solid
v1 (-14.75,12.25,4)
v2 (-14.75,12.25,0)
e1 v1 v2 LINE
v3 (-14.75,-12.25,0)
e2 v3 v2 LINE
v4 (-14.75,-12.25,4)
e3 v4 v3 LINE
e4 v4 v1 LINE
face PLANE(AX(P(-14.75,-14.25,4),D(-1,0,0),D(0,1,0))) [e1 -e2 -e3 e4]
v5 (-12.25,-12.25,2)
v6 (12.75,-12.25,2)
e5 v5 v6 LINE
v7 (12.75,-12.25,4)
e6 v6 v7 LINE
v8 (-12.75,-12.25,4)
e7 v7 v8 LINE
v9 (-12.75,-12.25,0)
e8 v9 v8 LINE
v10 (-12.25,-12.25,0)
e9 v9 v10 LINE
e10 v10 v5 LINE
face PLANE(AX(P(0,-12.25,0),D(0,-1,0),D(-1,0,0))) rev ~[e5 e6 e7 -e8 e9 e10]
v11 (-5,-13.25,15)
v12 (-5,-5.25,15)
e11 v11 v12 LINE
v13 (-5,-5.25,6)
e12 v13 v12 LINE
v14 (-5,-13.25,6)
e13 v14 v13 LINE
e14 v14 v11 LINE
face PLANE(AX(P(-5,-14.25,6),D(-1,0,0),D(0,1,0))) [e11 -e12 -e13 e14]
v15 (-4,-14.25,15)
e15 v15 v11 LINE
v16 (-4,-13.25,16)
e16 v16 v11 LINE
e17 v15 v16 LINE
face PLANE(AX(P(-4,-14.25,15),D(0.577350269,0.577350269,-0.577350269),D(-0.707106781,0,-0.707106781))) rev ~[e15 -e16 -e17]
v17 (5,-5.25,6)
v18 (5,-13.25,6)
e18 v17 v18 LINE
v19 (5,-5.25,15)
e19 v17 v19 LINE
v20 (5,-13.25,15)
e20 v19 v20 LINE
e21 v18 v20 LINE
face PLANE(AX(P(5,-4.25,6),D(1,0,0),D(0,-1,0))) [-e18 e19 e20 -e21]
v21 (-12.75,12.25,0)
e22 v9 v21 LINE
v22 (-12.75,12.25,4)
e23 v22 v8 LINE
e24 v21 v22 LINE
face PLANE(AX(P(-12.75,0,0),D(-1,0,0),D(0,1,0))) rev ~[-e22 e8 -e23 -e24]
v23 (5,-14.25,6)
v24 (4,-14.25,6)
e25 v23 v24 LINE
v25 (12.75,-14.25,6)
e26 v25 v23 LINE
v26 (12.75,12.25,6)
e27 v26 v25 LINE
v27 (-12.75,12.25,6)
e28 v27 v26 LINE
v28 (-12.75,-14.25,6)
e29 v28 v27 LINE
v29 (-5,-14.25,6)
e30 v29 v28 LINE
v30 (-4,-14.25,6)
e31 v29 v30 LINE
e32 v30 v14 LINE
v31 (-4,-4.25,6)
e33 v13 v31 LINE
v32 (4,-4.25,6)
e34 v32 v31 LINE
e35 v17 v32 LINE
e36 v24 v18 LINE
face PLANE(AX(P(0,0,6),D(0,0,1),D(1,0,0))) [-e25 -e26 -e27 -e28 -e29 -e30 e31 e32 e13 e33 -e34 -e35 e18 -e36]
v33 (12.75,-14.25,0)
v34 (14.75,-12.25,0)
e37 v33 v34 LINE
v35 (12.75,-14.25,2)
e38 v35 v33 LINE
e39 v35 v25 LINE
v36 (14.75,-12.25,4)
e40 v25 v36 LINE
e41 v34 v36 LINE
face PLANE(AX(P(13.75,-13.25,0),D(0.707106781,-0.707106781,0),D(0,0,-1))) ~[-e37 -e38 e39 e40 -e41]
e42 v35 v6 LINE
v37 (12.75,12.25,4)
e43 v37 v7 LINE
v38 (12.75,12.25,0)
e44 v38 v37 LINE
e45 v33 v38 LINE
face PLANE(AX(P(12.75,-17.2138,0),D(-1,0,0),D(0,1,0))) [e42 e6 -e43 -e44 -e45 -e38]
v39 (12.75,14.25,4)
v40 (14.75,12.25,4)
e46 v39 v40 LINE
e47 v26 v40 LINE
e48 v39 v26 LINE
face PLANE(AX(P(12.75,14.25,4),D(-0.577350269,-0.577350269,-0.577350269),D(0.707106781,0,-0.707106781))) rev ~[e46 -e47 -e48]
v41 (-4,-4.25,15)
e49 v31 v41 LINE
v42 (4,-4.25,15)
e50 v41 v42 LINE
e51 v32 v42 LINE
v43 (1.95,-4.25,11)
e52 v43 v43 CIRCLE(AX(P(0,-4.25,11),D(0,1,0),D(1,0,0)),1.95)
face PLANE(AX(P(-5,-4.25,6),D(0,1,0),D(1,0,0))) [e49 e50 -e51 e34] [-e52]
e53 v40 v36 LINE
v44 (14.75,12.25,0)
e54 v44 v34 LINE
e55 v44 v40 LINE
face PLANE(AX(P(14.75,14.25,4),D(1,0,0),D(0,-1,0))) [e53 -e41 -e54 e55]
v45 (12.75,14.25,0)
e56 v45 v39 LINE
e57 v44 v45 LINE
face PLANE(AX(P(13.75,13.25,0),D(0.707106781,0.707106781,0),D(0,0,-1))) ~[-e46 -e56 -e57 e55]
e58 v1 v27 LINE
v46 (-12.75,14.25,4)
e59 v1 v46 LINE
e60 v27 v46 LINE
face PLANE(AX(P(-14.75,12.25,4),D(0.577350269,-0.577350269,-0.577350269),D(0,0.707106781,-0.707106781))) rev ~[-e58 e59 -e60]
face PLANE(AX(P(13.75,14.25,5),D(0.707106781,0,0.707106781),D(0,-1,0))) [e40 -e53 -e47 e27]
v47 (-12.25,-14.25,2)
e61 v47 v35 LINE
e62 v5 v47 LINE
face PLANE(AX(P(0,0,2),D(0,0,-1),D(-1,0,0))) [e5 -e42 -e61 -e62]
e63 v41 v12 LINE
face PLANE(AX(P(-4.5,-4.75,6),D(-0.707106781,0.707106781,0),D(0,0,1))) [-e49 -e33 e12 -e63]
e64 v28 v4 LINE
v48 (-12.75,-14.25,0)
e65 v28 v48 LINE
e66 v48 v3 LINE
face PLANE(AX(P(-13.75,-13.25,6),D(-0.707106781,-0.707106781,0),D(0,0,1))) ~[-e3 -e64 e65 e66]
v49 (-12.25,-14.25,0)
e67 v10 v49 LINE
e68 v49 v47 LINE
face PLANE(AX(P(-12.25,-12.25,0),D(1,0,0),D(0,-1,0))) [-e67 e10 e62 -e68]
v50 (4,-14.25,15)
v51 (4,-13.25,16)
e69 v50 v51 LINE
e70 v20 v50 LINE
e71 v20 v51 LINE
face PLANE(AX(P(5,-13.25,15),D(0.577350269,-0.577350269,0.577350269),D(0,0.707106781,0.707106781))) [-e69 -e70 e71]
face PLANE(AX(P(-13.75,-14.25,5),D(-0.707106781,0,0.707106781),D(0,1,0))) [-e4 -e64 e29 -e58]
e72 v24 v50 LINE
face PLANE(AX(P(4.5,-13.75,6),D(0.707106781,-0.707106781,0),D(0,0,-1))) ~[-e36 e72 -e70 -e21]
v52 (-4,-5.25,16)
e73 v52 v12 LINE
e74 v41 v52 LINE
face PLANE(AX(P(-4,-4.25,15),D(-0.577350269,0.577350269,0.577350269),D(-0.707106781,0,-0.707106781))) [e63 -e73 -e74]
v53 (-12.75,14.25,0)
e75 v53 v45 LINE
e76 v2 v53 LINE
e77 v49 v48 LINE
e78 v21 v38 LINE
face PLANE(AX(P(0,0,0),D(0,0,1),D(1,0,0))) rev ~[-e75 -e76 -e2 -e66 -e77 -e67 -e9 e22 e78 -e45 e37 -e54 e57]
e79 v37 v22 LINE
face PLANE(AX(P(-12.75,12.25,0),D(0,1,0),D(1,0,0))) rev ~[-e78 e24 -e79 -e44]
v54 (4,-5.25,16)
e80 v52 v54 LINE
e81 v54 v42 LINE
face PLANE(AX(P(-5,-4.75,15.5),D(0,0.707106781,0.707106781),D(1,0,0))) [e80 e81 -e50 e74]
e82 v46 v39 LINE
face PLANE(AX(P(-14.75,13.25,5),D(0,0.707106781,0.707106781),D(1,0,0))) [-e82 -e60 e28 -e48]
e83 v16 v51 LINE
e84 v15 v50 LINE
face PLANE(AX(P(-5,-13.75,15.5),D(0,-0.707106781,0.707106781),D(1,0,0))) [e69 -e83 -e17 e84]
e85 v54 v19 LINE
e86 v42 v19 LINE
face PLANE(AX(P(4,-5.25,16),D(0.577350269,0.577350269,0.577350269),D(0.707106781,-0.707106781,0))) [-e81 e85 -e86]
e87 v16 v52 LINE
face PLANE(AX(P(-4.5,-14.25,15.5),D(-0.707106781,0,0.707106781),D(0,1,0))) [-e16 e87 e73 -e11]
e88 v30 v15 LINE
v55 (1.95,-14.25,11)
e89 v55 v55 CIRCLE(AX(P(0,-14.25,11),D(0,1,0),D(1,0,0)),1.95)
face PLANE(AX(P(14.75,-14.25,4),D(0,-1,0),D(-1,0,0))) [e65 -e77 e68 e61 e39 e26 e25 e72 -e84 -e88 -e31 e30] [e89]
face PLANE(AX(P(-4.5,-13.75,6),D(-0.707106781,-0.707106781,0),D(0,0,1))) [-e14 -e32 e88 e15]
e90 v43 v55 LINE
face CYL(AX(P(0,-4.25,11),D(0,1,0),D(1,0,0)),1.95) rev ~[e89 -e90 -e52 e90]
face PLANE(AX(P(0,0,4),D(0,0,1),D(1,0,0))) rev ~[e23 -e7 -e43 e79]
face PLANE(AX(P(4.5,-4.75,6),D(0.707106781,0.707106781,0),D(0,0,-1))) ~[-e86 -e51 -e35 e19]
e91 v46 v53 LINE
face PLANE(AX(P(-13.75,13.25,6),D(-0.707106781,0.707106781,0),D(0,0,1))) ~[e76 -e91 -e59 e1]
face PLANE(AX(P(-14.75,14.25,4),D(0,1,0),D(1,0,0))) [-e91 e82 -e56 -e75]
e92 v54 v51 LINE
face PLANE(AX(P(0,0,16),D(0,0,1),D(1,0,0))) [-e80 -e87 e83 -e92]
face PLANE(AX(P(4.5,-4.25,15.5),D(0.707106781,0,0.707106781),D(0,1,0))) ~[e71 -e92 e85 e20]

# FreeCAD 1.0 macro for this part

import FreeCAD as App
import Part
import Sketcher

V = App.Vector


def edges_at(feature, points):
    """Names of the edges that pass closest to the given points."""
    edges = feature.Shape.Edges
    near = lambda p: min(range(len(edges)), key=lambda i: edges[i].distToShape(Part.Vertex(*p))[0])
    return sorted({f"Edge{near(p) + 1}" for p in points})

doc = App.newDocument("Part")
body = doc.addObject("PartDesign::Body", "Body")

# Sketch on XY plane
sketch1 = body.newObject("Sketcher::SketchObject", "Sketch")
sketch1.AttachmentSupport = (doc.getObject("XY_Plane"), [""])
sketch1.MapMode = "FlatFace"
sketch1.addGeometry(Part.LineSegment(V(-14.75, 14.25, 0), V(-14.75, -14.25, 0)), False)
sketch1.addGeometry(Part.LineSegment(V(-14.75, -14.25, 0), V(14.75, -14.25, 0)), False)
sketch1.addGeometry(Part.LineSegment(V(14.75, -14.25, 0), V(14.75, 14.25, 0)), False)
sketch1.addGeometry(Part.LineSegment(V(14.75, 14.25, 0), V(-14.75, 14.25, 0)), False)
sketch1.addGeometry(Part.LineSegment(V(-12.75, 12.25, 0), V(12.75, 12.25, 0)), False)
sketch1.addGeometry(Part.LineSegment(V(12.75, 12.25, 0), V(12.75, -12.25, 0)), False)
sketch1.addGeometry(Part.LineSegment(V(12.75, -12.25, 0), V(-12.75, -12.25, 0)), False)
sketch1.addGeometry(Part.LineSegment(V(-12.75, -12.25, 0), V(-12.75, 12.25, 0)), False)
sketch1.addConstraint(Sketcher.Constraint("Coincident", 0, 2, 1, 1))
sketch1.addConstraint(Sketcher.Constraint("Coincident", 1, 2, 2, 1))
sketch1.addConstraint(Sketcher.Constraint("Coincident", 2, 2, 3, 1))
sketch1.addConstraint(Sketcher.Constraint("Coincident", 3, 2, 0, 1))
sketch1.addConstraint(Sketcher.Constraint("Coincident", 4, 2, 5, 1))
sketch1.addConstraint(Sketcher.Constraint("Coincident", 5, 2, 6, 1))
sketch1.addConstraint(Sketcher.Constraint("Coincident", 6, 2, 7, 1))
sketch1.addConstraint(Sketcher.Constraint("Coincident", 7, 2, 4, 1))
sketch1.addConstraint(Sketcher.Constraint("Vertical", 0))
sketch1.addConstraint(Sketcher.Constraint("Horizontal", 1))
sketch1.addConstraint(Sketcher.Constraint("Vertical", 2))
sketch1.addConstraint(Sketcher.Constraint("Horizontal", 3))
sketch1.addConstraint(Sketcher.Constraint("Horizontal", 4))
sketch1.addConstraint(Sketcher.Constraint("Vertical", 5))
sketch1.addConstraint(Sketcher.Constraint("Horizontal", 6))
sketch1.addConstraint(Sketcher.Constraint("Vertical", 7))
sketch1.addConstraint(Sketcher.Constraint("Symmetric", 0, 2, 2, 2, -1, 1))
sketch1.addConstraint(Sketcher.Constraint("Symmetric", 4, 2, 6, 2, -1, 1))
sketch1.addConstraint(Sketcher.Constraint("DistanceX", 4, 1, 4, 2, 25.5))
sketch1.addConstraint(Sketcher.Constraint("DistanceY", 5, 2, 5, 1, 24.5))
sketch1.addConstraint(Sketcher.Constraint("DistanceX", 4, 2, 2, 2, 2.0))
sketch1.addConstraint(Sketcher.Constraint("DistanceY", 4, 2, 2, 2, 2.0))
pad1 = body.newObject("PartDesign::Pad", "Pad")
pad1.Profile = sketch1
pad1.Length = 4

# Sketch on XY plane
sketch2 = body.newObject("Sketcher::SketchObject", "Sketch001")
sketch2.AttachmentSupport = (doc.getObject("XY_Plane"), [""])
sketch2.MapMode = "FlatFace"
sketch2.AttachmentOffset = App.Placement(V(0, 0, 4), App.Rotation())
sketch2.addGeometry(Part.LineSegment(V(-14.75, -14.25, 0), V(14.75, -14.25, 0)), False)
sketch2.addGeometry(Part.LineSegment(V(14.75, -14.25, 0), V(14.75, 14.25, 0)), False)
sketch2.addGeometry(Part.LineSegment(V(14.75, 14.25, 0), V(-14.75, 14.25, 0)), False)
sketch2.addGeometry(Part.LineSegment(V(-14.75, 14.25, 0), V(-14.75, -14.25, 0)), False)
sketch2.addConstraint(Sketcher.Constraint("Coincident", 0, 2, 1, 1))
sketch2.addConstraint(Sketcher.Constraint("Coincident", 1, 2, 2, 1))
sketch2.addConstraint(Sketcher.Constraint("Coincident", 2, 2, 3, 1))
sketch2.addConstraint(Sketcher.Constraint("Coincident", 3, 2, 0, 1))
sketch2.addConstraint(Sketcher.Constraint("Horizontal", 0))
sketch2.addConstraint(Sketcher.Constraint("Vertical", 1))
sketch2.addConstraint(Sketcher.Constraint("Horizontal", 2))
sketch2.addConstraint(Sketcher.Constraint("Vertical", 3))
sketch2.addConstraint(Sketcher.Constraint("Symmetric", 0, 2, 2, 2, -1, 1))
sketch2.addConstraint(Sketcher.Constraint("DistanceX", 0, 1, 0, 2, 29.5))
sketch2.addConstraint(Sketcher.Constraint("DistanceY", 1, 1, 1, 2, 28.5))
pad2 = body.newObject("PartDesign::Pad", "Pad001")
pad2.Profile = sketch2
pad2.Length = 2

# Sketch on XY plane
sketch3 = body.newObject("Sketcher::SketchObject", "Sketch002")
sketch3.AttachmentSupport = (doc.getObject("XY_Plane"), [""])
sketch3.MapMode = "FlatFace"
sketch3.addGeometry(Part.LineSegment(V(-12.25, -17.2138, 0), V(-12.25, -12.25, 0)), False)
sketch3.addGeometry(Part.LineSegment(V(-12.25, -12.25, 0), V(12.75, -12.25, 0)), False)
sketch3.addGeometry(Part.LineSegment(V(12.75, -12.25, 0), V(12.75, -17.2138, 0)), False)
sketch3.addGeometry(Part.LineSegment(V(12.75, -17.2138, 0), V(-12.25, -17.2138, 0)), False)
sketch3.addConstraint(Sketcher.Constraint("Coincident", 0, 2, 1, 1))
sketch3.addConstraint(Sketcher.Constraint("Coincident", 1, 2, 2, 1))
sketch3.addConstraint(Sketcher.Constraint("Coincident", 2, 2, 3, 1))
sketch3.addConstraint(Sketcher.Constraint("Coincident", 3, 2, 0, 1))
sketch3.addConstraint(Sketcher.Constraint("Vertical", 0))
sketch3.addConstraint(Sketcher.Constraint("Horizontal", 1))
sketch3.addConstraint(Sketcher.Constraint("Vertical", 2))
sketch3.addConstraint(Sketcher.Constraint("Horizontal", 3))
sketch3.addConstraint(Sketcher.Constraint("DistanceX", 1, 1, 1, 2, 25.0))
sketch3.addConstraint(Sketcher.Constraint("DistanceX", 0, 2, -1, 1, 12.25))
sketch3.addConstraint(Sketcher.Constraint("DistanceY", 0, 2, -1, 1, 12.25))
sketch3.addConstraint(Sketcher.Constraint("DistanceY", 0, 1, 0, 2, 4.9638))
pocket1 = body.newObject("PartDesign::Pocket", "Pocket")
pocket1.Profile = sketch3
pocket1.Length = 2
pocket1.Reversed = True

# Sketch on XY plane
sketch4 = body.newObject("Sketcher::SketchObject", "Sketch003")
sketch4.AttachmentSupport = (doc.getObject("XY_Plane"), [""])
sketch4.MapMode = "FlatFace"
sketch4.AttachmentOffset = App.Placement(V(0, 0, 6), App.Rotation())
sketch4.addGeometry(Part.LineSegment(V(-5, -4.25, 0), V(-5, -14.25, 0)), False)
sketch4.addGeometry(Part.LineSegment(V(-5, -14.25, 0), V(5, -14.25, 0)), False)
sketch4.addGeometry(Part.LineSegment(V(5, -14.25, 0), V(5, -4.25, 0)), False)
sketch4.addGeometry(Part.LineSegment(V(5, -4.25, 0), V(-5, -4.25, 0)), False)
sketch4.addConstraint(Sketcher.Constraint("Coincident", 0, 2, 1, 1))
sketch4.addConstraint(Sketcher.Constraint("Coincident", 1, 2, 2, 1))
sketch4.addConstraint(Sketcher.Constraint("Coincident", 2, 2, 3, 1))
sketch4.addConstraint(Sketcher.Constraint("Coincident", 3, 2, 0, 1))
sketch4.addConstraint(Sketcher.Constraint("Vertical", 0))
sketch4.addConstraint(Sketcher.Constraint("Horizontal", 1))
sketch4.addConstraint(Sketcher.Constraint("Vertical", 2))
sketch4.addConstraint(Sketcher.Constraint("Horizontal", 3))
sketch4.addConstraint(Sketcher.Constraint("Equal", 3, 0))
sketch4.addConstraint(Sketcher.Constraint("DistanceX", 1, 1, 1, 2, 10.0))
sketch4.addConstraint(Sketcher.Constraint("DistanceX", 0, 2, -1, 1, 5.0))
sketch4.addConstraint(Sketcher.Constraint("DistanceY", 0, 2, -1, 1, 14.25))
pad3 = body.newObject("PartDesign::Pad", "Pad002")
pad3.Profile = sketch4
pad3.Length = 10

# Sketch on XZ plane
sketch5 = body.newObject("Sketcher::SketchObject", "Sketch004")
sketch5.AttachmentSupport = (doc.getObject("XZ_Plane"), [""])
sketch5.MapMode = "FlatFace"
sketch5.AttachmentOffset = App.Placement(V(0, 0, 4.25), App.Rotation())
sketch5.addGeometry(Part.Circle(V(0, 11, 0), V(0, 0, 1), 1.95), False)
sketch5.addConstraint(Sketcher.Constraint("PointOnObject", 0, 3, -2))
sketch5.addConstraint(Sketcher.Constraint("Diameter", 0, 3.9))
sketch5.addConstraint(Sketcher.Constraint("DistanceY", -1, 1, 0, 3, 11.0))
pocket2 = body.newObject("PartDesign::Pocket", "Pocket001")
pocket2.Profile = sketch5
pocket2.Length = 26
pocket2.Reversed = True
doc.recompute()

chamfer = body.newObject("PartDesign::Chamfer", "Chamfer")
chamfer.Base = (pocket2, edges_at(pocket2, [
    (-5, -9.25, 16),
    (0, -14.25, 16),
    (5, -14.25, 11),
    (5, -4.25, 11),
    (0, -4.25, 16),
    (-5, -4.25, 11),
    (-5, -14.25, 11),
    (5, -9.25, 16),
]))
chamfer.Size = 1
doc.recompute()

chamfer2 = body.newObject("PartDesign::Chamfer", "Chamfer001")
chamfer2.Base = (chamfer, edges_at(chamfer, [
    (14.75, -14.25, 3),
    (14.75, 0, 6),
    (0, 14.25, 6),
    (-14.75, 0, 6),
    (-14.75, -14.25, 3),
    (-14.75, 14.25, 3),
    (14.75, 14.25, 3),
]))
chamfer2.Size = 2

doc.recompute()
